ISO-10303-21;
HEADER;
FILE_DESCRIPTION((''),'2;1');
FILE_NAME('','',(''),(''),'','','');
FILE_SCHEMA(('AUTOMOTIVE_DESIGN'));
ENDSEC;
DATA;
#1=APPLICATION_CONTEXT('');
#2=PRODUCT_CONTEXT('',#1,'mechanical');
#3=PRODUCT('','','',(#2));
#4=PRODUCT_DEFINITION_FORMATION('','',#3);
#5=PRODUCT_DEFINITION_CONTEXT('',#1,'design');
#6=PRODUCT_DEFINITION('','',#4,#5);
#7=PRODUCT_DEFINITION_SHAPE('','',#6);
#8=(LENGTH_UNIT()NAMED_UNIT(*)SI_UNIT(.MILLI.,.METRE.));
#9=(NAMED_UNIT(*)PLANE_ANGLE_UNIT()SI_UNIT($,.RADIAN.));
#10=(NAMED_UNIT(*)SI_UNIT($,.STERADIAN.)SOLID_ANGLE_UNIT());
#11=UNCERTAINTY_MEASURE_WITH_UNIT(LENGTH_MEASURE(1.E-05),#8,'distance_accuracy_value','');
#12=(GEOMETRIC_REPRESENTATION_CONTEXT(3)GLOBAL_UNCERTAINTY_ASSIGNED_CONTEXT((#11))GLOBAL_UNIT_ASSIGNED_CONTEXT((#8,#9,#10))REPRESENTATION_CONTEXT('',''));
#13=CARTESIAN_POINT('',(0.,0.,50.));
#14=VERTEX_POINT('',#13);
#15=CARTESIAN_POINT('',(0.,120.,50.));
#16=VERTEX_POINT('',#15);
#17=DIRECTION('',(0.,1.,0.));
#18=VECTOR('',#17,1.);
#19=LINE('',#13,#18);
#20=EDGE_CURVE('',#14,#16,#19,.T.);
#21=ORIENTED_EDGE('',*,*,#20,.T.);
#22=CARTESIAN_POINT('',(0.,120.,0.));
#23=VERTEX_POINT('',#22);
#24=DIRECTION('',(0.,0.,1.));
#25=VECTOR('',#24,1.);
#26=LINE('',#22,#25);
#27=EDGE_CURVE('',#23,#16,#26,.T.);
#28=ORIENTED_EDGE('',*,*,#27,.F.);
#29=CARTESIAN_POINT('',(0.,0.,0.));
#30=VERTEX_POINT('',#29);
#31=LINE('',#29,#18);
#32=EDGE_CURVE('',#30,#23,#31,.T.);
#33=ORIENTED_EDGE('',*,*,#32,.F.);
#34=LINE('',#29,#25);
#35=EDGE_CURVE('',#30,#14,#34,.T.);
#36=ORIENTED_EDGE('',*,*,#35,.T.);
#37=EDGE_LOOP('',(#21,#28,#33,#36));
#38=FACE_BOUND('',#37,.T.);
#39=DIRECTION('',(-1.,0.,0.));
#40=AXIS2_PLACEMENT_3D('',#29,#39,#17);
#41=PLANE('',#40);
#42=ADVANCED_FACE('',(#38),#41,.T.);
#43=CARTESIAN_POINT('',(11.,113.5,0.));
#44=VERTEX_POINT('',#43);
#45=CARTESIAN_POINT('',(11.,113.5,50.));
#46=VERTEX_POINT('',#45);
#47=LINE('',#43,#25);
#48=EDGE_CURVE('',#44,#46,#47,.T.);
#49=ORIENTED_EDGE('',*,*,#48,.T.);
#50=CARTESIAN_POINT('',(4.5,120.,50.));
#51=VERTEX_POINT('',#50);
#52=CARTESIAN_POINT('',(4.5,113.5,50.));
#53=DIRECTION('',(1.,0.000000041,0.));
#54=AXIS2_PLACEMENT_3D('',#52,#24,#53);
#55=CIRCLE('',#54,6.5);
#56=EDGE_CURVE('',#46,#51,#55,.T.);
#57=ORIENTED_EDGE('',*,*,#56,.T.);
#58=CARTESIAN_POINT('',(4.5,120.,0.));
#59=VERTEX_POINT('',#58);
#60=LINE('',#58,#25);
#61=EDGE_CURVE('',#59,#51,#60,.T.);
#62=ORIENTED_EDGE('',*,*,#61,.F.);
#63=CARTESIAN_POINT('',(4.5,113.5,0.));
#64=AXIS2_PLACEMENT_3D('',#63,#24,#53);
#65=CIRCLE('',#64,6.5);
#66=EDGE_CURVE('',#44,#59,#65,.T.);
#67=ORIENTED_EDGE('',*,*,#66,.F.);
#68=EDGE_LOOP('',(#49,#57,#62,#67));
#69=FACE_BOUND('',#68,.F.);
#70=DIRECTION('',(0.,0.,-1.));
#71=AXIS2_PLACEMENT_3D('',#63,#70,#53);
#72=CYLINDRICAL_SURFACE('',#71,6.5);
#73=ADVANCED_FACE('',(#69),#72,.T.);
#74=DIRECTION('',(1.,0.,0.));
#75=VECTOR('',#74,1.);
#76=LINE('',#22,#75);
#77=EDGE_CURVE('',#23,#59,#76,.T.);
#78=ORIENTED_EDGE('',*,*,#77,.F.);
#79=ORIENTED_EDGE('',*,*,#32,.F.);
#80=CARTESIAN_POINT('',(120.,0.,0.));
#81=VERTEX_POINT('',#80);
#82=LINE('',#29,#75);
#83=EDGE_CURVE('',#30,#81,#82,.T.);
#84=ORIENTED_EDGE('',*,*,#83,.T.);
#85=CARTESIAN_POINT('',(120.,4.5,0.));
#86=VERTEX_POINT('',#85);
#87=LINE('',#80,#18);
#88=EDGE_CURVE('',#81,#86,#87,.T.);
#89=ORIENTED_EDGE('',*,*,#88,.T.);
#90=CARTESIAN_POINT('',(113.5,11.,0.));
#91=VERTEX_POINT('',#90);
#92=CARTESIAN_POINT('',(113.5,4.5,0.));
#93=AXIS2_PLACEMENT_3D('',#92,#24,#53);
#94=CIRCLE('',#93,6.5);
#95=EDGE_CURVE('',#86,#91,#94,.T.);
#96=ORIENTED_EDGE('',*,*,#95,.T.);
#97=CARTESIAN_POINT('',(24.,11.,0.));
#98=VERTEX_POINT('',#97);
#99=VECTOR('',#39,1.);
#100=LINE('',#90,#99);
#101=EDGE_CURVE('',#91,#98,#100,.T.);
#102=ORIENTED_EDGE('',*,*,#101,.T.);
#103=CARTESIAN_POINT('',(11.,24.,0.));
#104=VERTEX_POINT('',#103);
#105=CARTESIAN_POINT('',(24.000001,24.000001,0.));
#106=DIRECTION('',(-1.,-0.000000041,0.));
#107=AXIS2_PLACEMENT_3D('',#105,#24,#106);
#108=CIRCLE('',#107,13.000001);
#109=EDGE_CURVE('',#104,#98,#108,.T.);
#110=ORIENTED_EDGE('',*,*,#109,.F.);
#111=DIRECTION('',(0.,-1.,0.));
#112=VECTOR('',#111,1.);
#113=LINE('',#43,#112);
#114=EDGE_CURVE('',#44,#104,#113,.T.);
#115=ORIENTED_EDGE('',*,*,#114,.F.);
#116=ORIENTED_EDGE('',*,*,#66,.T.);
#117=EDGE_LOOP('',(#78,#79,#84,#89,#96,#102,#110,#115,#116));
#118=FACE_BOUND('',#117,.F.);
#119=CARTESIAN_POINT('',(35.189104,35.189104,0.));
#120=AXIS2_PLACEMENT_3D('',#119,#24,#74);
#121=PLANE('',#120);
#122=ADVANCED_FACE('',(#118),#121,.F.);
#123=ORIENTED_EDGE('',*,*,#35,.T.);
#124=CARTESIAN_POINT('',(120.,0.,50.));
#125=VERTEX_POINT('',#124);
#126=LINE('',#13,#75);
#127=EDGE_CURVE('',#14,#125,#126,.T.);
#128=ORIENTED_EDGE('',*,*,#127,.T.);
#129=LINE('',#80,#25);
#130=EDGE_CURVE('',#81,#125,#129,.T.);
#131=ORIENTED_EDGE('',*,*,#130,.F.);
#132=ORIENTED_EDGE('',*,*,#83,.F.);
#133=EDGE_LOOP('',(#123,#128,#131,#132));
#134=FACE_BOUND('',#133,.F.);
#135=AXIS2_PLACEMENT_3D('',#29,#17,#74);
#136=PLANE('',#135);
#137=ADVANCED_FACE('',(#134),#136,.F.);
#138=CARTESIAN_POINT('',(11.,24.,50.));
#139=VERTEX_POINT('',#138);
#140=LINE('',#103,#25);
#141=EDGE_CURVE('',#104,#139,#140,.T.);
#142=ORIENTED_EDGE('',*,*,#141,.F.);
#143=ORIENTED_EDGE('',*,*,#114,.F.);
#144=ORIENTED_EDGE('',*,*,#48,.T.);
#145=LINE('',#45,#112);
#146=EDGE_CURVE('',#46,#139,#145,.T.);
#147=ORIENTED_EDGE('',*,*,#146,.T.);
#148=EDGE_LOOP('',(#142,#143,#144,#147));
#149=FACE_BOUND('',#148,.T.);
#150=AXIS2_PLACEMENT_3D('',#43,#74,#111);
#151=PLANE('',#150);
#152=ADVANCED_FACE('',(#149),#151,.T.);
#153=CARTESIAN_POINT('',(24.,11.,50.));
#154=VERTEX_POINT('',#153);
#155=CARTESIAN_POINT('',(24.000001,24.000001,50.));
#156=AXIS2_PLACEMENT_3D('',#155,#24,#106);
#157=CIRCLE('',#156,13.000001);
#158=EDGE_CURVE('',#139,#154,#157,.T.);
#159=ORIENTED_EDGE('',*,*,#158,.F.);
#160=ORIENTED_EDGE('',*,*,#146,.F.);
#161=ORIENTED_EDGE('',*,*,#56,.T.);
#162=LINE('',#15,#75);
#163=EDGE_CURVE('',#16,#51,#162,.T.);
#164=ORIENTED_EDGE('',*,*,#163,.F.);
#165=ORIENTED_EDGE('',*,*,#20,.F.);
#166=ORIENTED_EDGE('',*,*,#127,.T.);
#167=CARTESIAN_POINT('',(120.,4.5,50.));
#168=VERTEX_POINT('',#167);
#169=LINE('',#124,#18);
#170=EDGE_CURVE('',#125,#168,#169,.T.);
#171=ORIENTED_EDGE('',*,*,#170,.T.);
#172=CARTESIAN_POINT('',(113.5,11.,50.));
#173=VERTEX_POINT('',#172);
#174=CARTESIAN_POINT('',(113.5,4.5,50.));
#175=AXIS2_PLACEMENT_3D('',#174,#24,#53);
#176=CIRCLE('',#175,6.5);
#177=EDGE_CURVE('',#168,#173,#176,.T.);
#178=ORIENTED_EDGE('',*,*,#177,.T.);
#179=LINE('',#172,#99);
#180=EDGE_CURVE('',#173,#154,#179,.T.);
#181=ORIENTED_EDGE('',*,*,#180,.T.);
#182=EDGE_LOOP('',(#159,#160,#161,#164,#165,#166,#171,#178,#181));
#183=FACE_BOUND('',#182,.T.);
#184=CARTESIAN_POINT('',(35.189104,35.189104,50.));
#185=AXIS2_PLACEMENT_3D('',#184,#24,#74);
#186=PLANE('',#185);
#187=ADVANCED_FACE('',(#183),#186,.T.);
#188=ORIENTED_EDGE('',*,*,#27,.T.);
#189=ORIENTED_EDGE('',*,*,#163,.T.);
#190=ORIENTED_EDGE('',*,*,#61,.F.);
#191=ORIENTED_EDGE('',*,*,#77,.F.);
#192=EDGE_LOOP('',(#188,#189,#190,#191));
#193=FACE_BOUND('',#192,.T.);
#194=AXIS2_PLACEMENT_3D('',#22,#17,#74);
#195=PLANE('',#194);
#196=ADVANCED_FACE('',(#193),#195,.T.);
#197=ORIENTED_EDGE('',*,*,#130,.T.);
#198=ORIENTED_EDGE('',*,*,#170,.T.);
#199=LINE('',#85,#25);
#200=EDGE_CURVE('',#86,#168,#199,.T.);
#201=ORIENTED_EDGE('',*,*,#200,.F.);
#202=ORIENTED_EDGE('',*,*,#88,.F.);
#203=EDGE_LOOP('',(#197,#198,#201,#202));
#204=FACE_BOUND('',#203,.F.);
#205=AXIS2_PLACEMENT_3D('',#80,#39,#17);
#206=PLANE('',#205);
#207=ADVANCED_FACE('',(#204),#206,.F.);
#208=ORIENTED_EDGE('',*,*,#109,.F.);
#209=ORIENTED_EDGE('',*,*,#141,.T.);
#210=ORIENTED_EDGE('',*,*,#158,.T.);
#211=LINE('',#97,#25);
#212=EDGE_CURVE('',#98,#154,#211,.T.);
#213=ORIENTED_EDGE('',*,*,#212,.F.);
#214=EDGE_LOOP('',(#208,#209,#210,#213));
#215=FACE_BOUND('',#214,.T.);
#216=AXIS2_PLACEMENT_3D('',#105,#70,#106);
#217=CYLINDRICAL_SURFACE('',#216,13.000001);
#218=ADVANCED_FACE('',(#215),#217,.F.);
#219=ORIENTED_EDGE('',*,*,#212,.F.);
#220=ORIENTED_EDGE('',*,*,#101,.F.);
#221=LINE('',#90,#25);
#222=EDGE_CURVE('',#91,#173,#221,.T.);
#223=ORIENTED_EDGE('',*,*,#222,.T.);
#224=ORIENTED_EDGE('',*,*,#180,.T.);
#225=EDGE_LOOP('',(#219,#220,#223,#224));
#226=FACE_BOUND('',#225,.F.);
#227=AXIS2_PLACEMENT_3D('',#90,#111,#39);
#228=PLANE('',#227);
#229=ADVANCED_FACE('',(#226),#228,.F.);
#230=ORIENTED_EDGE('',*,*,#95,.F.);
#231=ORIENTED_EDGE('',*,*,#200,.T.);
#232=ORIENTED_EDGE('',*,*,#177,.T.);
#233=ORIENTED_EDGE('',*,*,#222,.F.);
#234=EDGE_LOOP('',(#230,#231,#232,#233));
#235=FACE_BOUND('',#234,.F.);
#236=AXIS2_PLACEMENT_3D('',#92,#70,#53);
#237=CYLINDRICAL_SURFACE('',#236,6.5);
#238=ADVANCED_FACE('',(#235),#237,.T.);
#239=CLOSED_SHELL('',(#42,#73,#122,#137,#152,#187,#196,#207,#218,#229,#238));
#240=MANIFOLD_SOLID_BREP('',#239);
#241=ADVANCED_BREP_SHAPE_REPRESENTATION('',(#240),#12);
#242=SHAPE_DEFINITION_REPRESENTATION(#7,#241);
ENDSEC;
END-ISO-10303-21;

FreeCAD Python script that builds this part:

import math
import FreeCAD as App
import Part
import Sketcher
Q = App.Units.Quantity

doc = App.newDocument("Part")
body = doc.addObject("PartDesign::Body", "Body")

# Sketch on XY plane
sketch1 = body.newObject("Sketcher::SketchObject", "Sketch")
sketch1.AttachmentSupport = (doc.getObject("XY_Plane"), [""])
sketch1.MapMode = "FlatFace"
sketch1.addGeometry([
    Part.LineSegment(App.Vector(0, 0, 0), App.Vector(120, 0, 0)),  # 0
    Part.LineSegment(App.Vector(120, 0, 0), App.Vector(120, 4.5, 0)),  # 1
    Part.ArcOfCircle(Part.Circle(App.Vector(113.5, 4.5, 0), App.Vector(0, 0, 1), 6.5), math.radians(0.000002), math.radians(89.999998)),  # 2
    Part.LineSegment(App.Vector(113.5, 11, 0), App.Vector(24, 11, 0)),  # 3
    Part.ArcOfCircle(Part.Circle(App.Vector(24.000001, 24.000001, 0), App.Vector(0, 0, 1), 13.000001), math.radians(-179.999998), math.radians(-90.000002)),  # 4
    Part.LineSegment(App.Vector(11, 24, 0), App.Vector(11, 113.5, 0)),  # 5
    Part.ArcOfCircle(Part.Circle(App.Vector(4.5, 113.5, 0), App.Vector(0, 0, 1), 6.5), math.radians(0.000002), math.radians(89.999998)),  # 6
    Part.LineSegment(App.Vector(4.5, 120, 0), App.Vector(0, 120, 0)),  # 7
    Part.LineSegment(App.Vector(0, 120, 0), App.Vector(0, 0, 0)),  # 8
], False)
sketch1.addConstraint([
    Sketcher.Constraint("Coincident", 0, 2, 1, 1),
    Sketcher.Constraint("Tangent", 1, 2, 2, 1),
    Sketcher.Constraint("Tangent", 2, 2, 3, 1),
    Sketcher.Constraint("Tangent", 3, 2, 4, 2),
    Sketcher.Constraint("Tangent", 4, 1, 5, 1),
    Sketcher.Constraint("Tangent", 5, 2, 6, 1),
    Sketcher.Constraint("Tangent", 6, 2, 7, 1),
    Sketcher.Constraint("Coincident", 7, 2, 8, 1),
    Sketcher.Constraint("Coincident", 8, 2, 0, 1),
    Sketcher.Constraint("Horizontal", 0),
    Sketcher.Constraint("Vertical", 1),
    Sketcher.Constraint("Horizontal", 3),
    Sketcher.Constraint("Vertical", 5),
    Sketcher.Constraint("Horizontal", 7),
    Sketcher.Constraint("Vertical", 8),
    Sketcher.Constraint("Coincident", 8, 2, -1, 1),
    Sketcher.Constraint("Equal", 2, 6),
    Sketcher.Constraint("Equal", 7, 1),
    Sketcher.Constraint("Equal", 3, 5),
    Sketcher.Constraint("Radius", 4, Q("13.000001 mm")),
    Sketcher.Constraint("Radius", 2, Q("6.5 mm")),
    Sketcher.Constraint("DistanceX", 0, 1, 0, 2, Q("120 mm")),
    Sketcher.Constraint("DistanceX", 3, 2, 3, 1, Q("89.5 mm")),
])
pad1 = body.newObject("PartDesign::Pad", "Pad")
pad1.Profile = sketch1
pad1.Length = 50

doc.recompute()
